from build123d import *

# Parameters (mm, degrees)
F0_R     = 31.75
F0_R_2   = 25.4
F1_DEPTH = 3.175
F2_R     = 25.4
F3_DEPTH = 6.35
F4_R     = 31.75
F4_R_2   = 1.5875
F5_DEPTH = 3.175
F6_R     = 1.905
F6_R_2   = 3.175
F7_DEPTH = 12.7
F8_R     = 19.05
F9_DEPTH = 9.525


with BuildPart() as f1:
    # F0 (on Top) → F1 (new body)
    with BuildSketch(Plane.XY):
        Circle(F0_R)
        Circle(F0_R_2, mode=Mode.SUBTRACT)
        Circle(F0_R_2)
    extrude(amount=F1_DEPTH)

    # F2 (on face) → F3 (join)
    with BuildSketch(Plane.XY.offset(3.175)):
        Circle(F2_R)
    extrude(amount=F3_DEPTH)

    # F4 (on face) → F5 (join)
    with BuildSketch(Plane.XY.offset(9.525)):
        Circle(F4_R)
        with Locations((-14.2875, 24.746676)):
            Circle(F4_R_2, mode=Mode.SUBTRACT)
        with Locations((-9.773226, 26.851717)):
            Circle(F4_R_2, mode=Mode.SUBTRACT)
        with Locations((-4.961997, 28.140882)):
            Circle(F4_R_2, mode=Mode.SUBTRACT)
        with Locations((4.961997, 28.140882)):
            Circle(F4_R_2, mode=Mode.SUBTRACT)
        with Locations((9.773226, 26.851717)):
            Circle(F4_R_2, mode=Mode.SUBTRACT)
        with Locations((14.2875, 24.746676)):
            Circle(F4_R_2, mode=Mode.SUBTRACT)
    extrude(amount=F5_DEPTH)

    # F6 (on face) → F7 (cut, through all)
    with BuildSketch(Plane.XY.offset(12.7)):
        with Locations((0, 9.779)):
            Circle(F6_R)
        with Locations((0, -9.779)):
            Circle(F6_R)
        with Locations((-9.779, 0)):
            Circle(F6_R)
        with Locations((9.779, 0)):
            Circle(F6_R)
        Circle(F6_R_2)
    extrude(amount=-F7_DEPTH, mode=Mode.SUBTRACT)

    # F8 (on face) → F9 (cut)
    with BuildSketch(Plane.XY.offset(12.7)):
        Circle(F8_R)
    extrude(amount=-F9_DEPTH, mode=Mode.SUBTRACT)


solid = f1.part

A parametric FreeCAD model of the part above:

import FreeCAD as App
import Part
import Sketcher
from FreeCAD import Vector
Q = App.Units.Quantity

doc = App.newDocument("Part")
body = doc.addObject("PartDesign::Body", "Body")

sketch1 = body.newObject("Sketcher::SketchObject", "Sketch")
sketch1.AttachmentSupport = (doc.getObject("XY_Plane"), [""])
sketch1.MapMode = "FlatFace"
sketch1.addGeometry(Part.Circle(Vector(0, 0, 0), Vector(0, 0, 1), 31.75), False)
sketch1.addConstraint(Sketcher.Constraint("Coincident", 0, 3, -1, 1))
sketch1.addConstraint(Sketcher.Constraint("Diameter", 0, Q("2.5 in")))
pad1 = body.newObject("PartDesign::Pad", "Pad")
pad1.Profile = sketch1
pad1.Length = Q("0.125 in")

sketch2 = body.newObject("Sketcher::SketchObject", "Sketch001")
sketch2.AttachmentSupport = (doc.getObject("XY_Plane"), [""])
sketch2.MapMode = "FlatFace"
sketch2.AttachmentOffset = App.Placement(Vector(0, 0, 0.125 * 25.4), App.Rotation())
sketch2.addGeometry(Part.Circle(Vector(0, 0, 0), Vector(0, 0, 1), 25.4), False)
sketch2.addConstraint(Sketcher.Constraint("Coincident", 0, 3, -1, 1))
sketch2.addConstraint(Sketcher.Constraint("Diameter", 0, Q("2 in")))
pad2 = body.newObject("PartDesign::Pad", "Pad001")
pad2.Profile = sketch2
pad2.Length = Q("0.25 in")

sketch3 = body.newObject("Sketcher::SketchObject", "Sketch002")
sketch3.AttachmentSupport = (doc.getObject("XY_Plane"), [""])
sketch3.MapMode = "FlatFace"
sketch3.AttachmentOffset = App.Placement(Vector(0, 0, 0.375 * 25.4), App.Rotation())
sketch3.addGeometry(Part.Circle(Vector(0, 0, 0), Vector(0, 0, 1), 31.75), False)
sketch3.addGeometry(Part.Circle(Vector(-14.2875, 24.746676, 0), Vector(0, 0, 1), 1.5875), False)
sketch3.addGeometry(Part.Circle(Vector(14.2875, 24.746676, 0), Vector(0, 0, 1), 1.5875), False)
sketch3.addGeometry(Part.Circle(Vector(-9.773226, 26.851717, 0), Vector(0, 0, 1), 1.5875), False)
sketch3.addGeometry(Part.Circle(Vector(-4.961997, 28.140882, 0), Vector(0, 0, 1), 1.5875), False)
sketch3.addGeometry(Part.Circle(Vector(9.773226, 26.851717, 0), Vector(0, 0, 1), 1.5875), False)
sketch3.addGeometry(Part.Circle(Vector(4.961997, 28.140882, 0), Vector(0, 0, 1), 1.5875), False)
sketch3.addConstraint(Sketcher.Constraint("Coincident", 0, 3, -1, 1))
sketch3.addConstraint(Sketcher.Constraint("Equal", 1, 2))
sketch3.addConstraint(Sketcher.Constraint("Equal", 2, 3))
sketch3.addConstraint(Sketcher.Constraint("Equal", 3, 4))
sketch3.addConstraint(Sketcher.Constraint("Equal", 4, 5))
sketch3.addConstraint(Sketcher.Constraint("Equal", 5, 6))
sketch3.addConstraint(Sketcher.Constraint("Symmetric", 1, 3, 2, 3, -2))
sketch3.addConstraint(Sketcher.Constraint("Symmetric", 3, 3, 5, 3, -2))
sketch3.addConstraint(Sketcher.Constraint("Symmetric", 4, 3, 6, 3, -2))
sketch3.addConstraint(Sketcher.Constraint("Diameter", 0, Q("2.5 in")))
sketch3.addConstraint(Sketcher.Constraint("Diameter", 1, Q("0.125 in")))
sketch3.addConstraint(Sketcher.Constraint("DistanceX", 1, 3, -1, 1, Q("0.5625 in")))
sketch3.addConstraint(Sketcher.Constraint("DistanceY", 1, 3, 3, 3, Q("2.105041 mm")))
sketch3.addConstraint(Sketcher.Constraint("DistanceX", 3, 3, 4, 3, Q("4.811229 mm")))
sketch3.addConstraint(Sketcher.Constraint("DistanceX", 3, 3, 5, 3, Q("19.546452 mm")))
sketch3.addConstraint(Sketcher.Constraint("DistanceY", -1, 1, 1, 3, Q("24.746676 mm")))
sketch3.addConstraint(Sketcher.Constraint("DistanceY", -1, 1, 4, 3, Q("28.140882 mm")))
pad3 = body.newObject("PartDesign::Pad", "Pad002")
pad3.Profile = sketch3
pad3.Length = Q("0.125 in")

sketch4 = body.newObject("Sketcher::SketchObject", "Sketch003")
sketch4.AttachmentSupport = (doc.getObject("XY_Plane"), [""])
sketch4.MapMode = "FlatFace"
sketch4.AttachmentOffset = App.Placement(Vector(0, 0, 0.5 * 25.4), App.Rotation())
sketch4.addGeometry(Part.Circle(Vector(0, 9.779, 0), Vector(0, 0, 1), 1.905), False)
sketch4.addGeometry(Part.Circle(Vector(0, -9.779, 0), Vector(0, 0, 1), 1.905), False)
sketch4.addGeometry(Part.Circle(Vector(-9.779, 0, 0), Vector(0, 0, 1), 1.905), False)
sketch4.addGeometry(Part.Circle(Vector(9.779, 0, 0), Vector(0, 0, 1), 1.905), False)
sketch4.addGeometry(Part.Circle(Vector(0, 0, 0), Vector(0, 0, 1), 3.175), False)
sketch4.addConstraint(Sketcher.Constraint("Coincident", 4, 3, -1, 1))
sketch4.addConstraint(Sketcher.Constraint("Equal", 0, 1))
sketch4.addConstraint(Sketcher.Constraint("Equal", 1, 2))
sketch4.addConstraint(Sketcher.Constraint("Equal", 2, 3))
sketch4.addConstraint(Sketcher.Constraint("Symmetric", 0, 3, 1, 3, -1, 1))
sketch4.addConstraint(Sketcher.Constraint("Symmetric", 2, 3, 3, 3, -1, 1))
sketch4.addConstraint(Sketcher.Constraint("PointOnObject", 0, 3, -2))
sketch4.addConstraint(Sketcher.Constraint("PointOnObject", 2, 3, -1))
sketch4.addConstraint(Sketcher.Constraint("Diameter", 0, Q("0.15 in")))
sketch4.addConstraint(Sketcher.Constraint("Diameter", 4, Q("0.25 in")))
sketch4.addConstraint(Sketcher.Constraint("DistanceY", 1, 3, 0, 3, Q("0.77 in")))
sketch4.addConstraint(Sketcher.Constraint("DistanceX", 2, 3, 3, 3, Q("0.77 in")))
pocket1 = body.newObject("PartDesign::Pocket", "Pocket")
pocket1.Profile = sketch4
pocket1.Type = "ThroughAll"

sketch5 = body.newObject("Sketcher::SketchObject", "Sketch004")
sketch5.AttachmentSupport = (doc.getObject("XY_Plane"), [""])
sketch5.MapMode = "FlatFace"
sketch5.AttachmentOffset = App.Placement(Vector(0, 0, 0.5 * 25.4), App.Rotation())
sketch5.addGeometry(Part.Circle(Vector(0, 0, 0), Vector(0, 0, 1), 19.05), False)
sketch5.addConstraint(Sketcher.Constraint("Coincident", 0, 3, -1, 1))
sketch5.addConstraint(Sketcher.Constraint("Diameter", 0, Q("1.5 in")))
pocket2 = body.newObject("PartDesign::Pocket", "Pocket001")
pocket2.Profile = sketch5
pocket2.Length = Q("0.375 in")

doc.recompute()
